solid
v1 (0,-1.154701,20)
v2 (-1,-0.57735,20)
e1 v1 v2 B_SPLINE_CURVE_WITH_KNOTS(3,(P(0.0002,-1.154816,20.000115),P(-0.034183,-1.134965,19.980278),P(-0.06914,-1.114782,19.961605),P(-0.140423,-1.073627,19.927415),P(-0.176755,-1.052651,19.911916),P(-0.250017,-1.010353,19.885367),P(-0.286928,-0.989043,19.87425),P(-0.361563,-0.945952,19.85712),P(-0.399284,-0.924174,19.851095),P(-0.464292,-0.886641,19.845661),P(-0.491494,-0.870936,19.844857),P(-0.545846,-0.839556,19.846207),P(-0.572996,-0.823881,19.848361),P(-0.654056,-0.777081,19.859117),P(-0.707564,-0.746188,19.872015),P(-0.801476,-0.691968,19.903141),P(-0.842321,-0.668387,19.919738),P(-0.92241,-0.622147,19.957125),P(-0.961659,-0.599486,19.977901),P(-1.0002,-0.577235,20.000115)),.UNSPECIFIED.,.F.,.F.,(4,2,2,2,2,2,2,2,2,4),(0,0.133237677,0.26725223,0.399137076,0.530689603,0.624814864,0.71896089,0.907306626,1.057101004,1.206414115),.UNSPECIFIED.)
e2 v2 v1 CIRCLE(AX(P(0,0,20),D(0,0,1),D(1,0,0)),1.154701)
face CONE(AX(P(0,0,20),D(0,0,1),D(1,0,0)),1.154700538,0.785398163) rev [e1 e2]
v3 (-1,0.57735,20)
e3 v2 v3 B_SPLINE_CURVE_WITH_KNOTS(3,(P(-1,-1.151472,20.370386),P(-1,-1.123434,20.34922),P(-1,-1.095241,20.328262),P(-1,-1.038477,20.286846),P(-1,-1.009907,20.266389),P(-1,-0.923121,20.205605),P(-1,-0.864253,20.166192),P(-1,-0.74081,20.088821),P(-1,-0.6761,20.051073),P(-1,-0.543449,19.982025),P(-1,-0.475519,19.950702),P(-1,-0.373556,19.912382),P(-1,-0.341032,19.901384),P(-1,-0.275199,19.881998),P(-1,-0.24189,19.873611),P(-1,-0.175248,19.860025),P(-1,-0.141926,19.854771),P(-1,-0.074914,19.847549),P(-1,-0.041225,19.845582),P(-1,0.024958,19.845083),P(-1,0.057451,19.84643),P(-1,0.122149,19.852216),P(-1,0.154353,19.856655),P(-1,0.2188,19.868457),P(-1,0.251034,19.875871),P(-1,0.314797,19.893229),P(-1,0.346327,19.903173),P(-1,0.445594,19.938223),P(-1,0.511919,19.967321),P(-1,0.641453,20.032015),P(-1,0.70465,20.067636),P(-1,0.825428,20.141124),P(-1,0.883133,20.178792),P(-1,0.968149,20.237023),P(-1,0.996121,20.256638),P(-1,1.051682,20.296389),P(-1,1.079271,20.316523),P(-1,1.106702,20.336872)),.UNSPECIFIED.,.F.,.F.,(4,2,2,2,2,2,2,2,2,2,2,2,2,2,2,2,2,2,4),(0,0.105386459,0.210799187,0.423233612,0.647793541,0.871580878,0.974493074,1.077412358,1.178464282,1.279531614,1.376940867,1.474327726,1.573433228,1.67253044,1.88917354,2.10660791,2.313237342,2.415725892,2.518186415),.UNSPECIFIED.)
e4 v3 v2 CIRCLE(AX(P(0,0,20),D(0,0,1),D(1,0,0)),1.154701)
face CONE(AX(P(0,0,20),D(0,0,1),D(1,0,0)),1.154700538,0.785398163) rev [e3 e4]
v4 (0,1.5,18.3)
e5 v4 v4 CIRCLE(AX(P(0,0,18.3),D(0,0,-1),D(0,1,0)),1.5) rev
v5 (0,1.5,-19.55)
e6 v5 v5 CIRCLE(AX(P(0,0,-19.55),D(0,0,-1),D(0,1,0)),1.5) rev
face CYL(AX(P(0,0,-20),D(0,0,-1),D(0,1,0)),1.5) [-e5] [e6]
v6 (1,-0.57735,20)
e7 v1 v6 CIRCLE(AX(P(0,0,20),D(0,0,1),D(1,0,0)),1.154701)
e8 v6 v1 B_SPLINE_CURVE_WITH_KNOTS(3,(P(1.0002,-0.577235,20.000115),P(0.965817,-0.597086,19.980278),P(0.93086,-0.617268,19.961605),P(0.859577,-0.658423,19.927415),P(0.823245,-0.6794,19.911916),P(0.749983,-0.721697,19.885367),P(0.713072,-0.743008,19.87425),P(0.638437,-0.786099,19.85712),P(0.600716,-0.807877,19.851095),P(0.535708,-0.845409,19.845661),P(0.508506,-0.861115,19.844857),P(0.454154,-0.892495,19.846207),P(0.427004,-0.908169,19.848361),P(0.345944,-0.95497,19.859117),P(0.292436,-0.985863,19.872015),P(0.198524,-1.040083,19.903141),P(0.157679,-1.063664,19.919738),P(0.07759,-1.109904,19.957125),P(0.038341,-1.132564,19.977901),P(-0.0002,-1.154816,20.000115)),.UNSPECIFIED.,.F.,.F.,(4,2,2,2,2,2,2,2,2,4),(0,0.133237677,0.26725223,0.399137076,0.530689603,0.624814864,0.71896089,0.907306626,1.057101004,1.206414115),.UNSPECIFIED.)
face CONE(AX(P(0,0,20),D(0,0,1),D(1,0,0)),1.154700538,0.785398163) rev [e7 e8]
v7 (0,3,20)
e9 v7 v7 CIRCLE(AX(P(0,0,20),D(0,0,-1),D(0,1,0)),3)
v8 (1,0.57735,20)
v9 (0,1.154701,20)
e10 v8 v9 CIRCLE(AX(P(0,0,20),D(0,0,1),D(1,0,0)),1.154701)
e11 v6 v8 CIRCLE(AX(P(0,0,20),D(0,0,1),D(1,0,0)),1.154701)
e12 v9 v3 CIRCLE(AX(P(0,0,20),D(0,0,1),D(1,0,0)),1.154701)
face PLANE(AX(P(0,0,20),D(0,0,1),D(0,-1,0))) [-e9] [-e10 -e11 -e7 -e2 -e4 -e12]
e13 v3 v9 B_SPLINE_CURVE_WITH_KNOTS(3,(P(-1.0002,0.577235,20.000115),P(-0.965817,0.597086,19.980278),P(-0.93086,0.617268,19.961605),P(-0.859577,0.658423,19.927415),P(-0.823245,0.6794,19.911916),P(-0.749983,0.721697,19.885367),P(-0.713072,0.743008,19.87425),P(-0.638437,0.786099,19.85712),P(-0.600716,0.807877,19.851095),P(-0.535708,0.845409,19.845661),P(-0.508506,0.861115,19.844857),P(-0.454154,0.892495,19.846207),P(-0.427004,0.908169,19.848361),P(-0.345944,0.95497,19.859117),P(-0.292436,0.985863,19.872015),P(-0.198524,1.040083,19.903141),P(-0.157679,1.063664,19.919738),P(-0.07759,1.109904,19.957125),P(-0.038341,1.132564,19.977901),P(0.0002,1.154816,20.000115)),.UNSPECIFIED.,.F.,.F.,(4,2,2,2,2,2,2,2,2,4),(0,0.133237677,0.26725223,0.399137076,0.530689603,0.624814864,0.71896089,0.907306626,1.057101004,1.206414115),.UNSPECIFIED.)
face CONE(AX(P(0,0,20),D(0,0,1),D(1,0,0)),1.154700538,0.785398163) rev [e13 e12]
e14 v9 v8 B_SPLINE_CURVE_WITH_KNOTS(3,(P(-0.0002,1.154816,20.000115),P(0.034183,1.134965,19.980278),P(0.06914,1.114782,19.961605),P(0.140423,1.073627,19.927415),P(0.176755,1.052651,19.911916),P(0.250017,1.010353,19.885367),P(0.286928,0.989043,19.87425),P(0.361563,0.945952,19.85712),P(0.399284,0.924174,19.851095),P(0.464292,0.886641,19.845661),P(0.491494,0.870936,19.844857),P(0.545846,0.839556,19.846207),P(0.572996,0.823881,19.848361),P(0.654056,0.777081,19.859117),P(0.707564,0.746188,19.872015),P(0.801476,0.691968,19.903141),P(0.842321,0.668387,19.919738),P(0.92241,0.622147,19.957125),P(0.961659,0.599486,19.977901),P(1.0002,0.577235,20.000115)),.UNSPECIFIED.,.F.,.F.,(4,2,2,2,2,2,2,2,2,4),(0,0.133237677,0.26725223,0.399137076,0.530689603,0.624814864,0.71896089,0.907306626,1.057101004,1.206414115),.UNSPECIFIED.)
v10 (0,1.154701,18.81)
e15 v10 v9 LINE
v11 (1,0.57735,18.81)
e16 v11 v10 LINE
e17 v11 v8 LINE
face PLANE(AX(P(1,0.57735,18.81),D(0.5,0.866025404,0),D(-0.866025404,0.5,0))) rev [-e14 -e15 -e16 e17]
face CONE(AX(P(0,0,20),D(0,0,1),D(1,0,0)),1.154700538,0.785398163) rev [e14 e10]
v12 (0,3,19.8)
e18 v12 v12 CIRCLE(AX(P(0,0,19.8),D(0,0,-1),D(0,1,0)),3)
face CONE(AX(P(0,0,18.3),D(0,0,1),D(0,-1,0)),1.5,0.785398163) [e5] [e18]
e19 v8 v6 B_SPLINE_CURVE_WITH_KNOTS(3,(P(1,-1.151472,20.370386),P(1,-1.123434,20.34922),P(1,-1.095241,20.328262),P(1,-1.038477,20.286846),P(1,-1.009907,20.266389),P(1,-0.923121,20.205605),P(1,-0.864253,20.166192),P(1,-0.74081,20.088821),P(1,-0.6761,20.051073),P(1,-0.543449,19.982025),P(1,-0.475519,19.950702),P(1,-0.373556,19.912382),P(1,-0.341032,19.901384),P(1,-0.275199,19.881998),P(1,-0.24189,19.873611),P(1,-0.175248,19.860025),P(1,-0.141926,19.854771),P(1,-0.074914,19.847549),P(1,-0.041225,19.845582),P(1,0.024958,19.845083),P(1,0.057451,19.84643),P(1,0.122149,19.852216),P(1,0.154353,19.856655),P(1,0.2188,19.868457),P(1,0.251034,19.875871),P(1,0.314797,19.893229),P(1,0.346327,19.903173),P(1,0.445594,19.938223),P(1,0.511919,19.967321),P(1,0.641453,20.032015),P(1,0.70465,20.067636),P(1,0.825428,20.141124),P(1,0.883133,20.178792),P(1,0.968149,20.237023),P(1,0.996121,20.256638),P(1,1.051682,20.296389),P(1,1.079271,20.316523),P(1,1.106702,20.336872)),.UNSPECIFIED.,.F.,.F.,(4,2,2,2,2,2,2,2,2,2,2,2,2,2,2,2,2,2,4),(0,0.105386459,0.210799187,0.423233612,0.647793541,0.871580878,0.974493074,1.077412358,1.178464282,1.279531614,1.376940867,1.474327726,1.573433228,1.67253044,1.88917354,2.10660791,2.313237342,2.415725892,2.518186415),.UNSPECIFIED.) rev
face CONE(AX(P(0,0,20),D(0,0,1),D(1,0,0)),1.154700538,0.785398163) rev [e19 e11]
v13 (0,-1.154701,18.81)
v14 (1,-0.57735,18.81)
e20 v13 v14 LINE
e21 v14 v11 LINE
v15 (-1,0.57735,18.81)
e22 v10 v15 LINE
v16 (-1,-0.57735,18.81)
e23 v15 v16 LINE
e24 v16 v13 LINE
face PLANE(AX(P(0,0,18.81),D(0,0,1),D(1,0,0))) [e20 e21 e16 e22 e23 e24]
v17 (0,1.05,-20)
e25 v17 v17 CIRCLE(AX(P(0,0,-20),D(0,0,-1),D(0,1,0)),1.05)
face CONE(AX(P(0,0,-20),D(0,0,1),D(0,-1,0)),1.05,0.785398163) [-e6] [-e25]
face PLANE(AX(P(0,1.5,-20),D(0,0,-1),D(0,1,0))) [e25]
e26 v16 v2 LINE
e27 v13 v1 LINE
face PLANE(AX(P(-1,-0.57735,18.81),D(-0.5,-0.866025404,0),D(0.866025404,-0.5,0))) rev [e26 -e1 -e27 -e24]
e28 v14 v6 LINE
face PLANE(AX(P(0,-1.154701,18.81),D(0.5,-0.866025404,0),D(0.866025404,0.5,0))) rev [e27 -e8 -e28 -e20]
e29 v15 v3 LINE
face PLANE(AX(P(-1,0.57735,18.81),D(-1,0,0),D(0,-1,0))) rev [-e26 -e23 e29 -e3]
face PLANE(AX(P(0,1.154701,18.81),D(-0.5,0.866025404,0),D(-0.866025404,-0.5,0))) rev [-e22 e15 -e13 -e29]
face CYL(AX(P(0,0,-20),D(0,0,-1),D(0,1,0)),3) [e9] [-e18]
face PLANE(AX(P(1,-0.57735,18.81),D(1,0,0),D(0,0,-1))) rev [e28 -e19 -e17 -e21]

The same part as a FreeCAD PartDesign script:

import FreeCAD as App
import Part
import Sketcher
from FreeCAD import Vector
Q = App.Units.Quantity


def edges_at(feature, points):
    """Names of the edges that pass closest to the given points."""
    edges = feature.Shape.Edges
    near = lambda p: min(range(len(edges)), key=lambda i: edges[i].distToShape(Part.Vertex(*p))[0])
    return sorted({f"Edge{near(p) + 1}" for p in points})


def add_polygon(sketch, points):
    """Adds a closed chain of lines whose ends are joined by coincident constraints."""
    first, n = sketch.GeometryCount, len(points)
    for a, b in zip(points, points[1:] + points[:1]):
        sketch.addGeometry(Part.LineSegment(App.Vector(*a, 0), App.Vector(*b, 0)), False)
    for i in range(n):
        sketch.addConstraint(Sketcher.Constraint("Coincident", first + i, 2, first + (i + 1) % n, 1))

doc = App.newDocument("Part")
body = doc.addObject("PartDesign::Body", "Body")

# Sketch on YZ plane
sketch1 = body.newObject("Sketcher::SketchObject", "Sketch")
sketch1.AttachmentSupport = (doc.getObject("YZ_Plane"), [""])
sketch1.MapMode = "FlatFace"
add_polygon(sketch1, [(1.5, 20), (0, 20), (0, -20), (1.5, -20)])  # lines 0-3
sketch1.addConstraint([
    Sketcher.Constraint("Horizontal", 0),
    Sketcher.Constraint("Vertical", 1),
    Sketcher.Constraint("Horizontal", 2),
    Sketcher.Constraint("Vertical", 3),
    Sketcher.Constraint("Symmetric", 0, 2, 1, 2, -1, 1),
    Sketcher.Constraint("DistanceY", 1, 2, 1, 1, Q("40 mm")),
    Sketcher.Constraint("DistanceX", 0, 2, 0, 1, Q("1.5 mm")),
])
revolution = body.newObject("PartDesign::Revolution", "Revolution")
revolution.Profile = sketch1
revolution.ReferenceAxis = (sketch1, ["V_Axis"])
revolution.Angle = 360
doc.recompute()

chamfer = body.newObject("PartDesign::Chamfer", "Chamfer")
chamfer.Base = (revolution, edges_at(revolution, [(0, -1.5, -20)]))
chamfer.Size = 0.45

# Sketch on YZ plane
sketch2 = body.newObject("Sketcher::SketchObject", "Sketch001")
sketch2.AttachmentSupport = (doc.getObject("YZ_Plane"), [""])
sketch2.MapMode = "FlatFace"
add_polygon(sketch2, [(3, 19.8), (3, 20), (0, 20), (0, 18.3), (1.5, 18.3)])  # lines 0-4
sketch2.addConstraint([
    Sketcher.Constraint("Vertical", 0),
    Sketcher.Constraint("Horizontal", 1),
    Sketcher.Constraint("Vertical", 2),
    Sketcher.Constraint("Horizontal", 3),
    Sketcher.Constraint("PointOnObject", 1, 2, -2),
    Sketcher.Constraint("DistanceX", 1, 2, 1, 1, Q("3 mm")),
    Sketcher.Constraint("Angle", 4, Q("45 deg")),
    Sketcher.Constraint("DistanceX", 3, 1, 3, 2, Q("1.5 mm")),
    Sketcher.Constraint("DistanceY", 0, 1, 0, 2, Q("0.2 mm")),
    Sketcher.Constraint("DistanceY", -1, 1, 0, 2, Q("20 mm")),
])
revolution2 = body.newObject("PartDesign::Revolution", "Revolution001")
revolution2.Profile = sketch2
revolution2.ReferenceAxis = (sketch2, ["V_Axis"])
revolution2.Angle = 360

# Sketch on XY plane
sketch3 = body.newObject("Sketcher::SketchObject", "Sketch002")
sketch3.AttachmentSupport = (doc.getObject("XY_Plane"), [""])
sketch3.MapMode = "FlatFace"
sketch3.AttachmentOffset = App.Placement(Vector(0, 0, 20), App.Rotation())
add_polygon(sketch3, [(0, 1.2), (-1, 0.6), (-1, -0.6), (0, -1.2), (1, -0.6), (1, 0.6)])  # lines 0-5
sketch3.addConstraint([
    Sketcher.Constraint("Vertical", 1),
    Sketcher.Constraint("Vertical", 4),
    Sketcher.Constraint("Symmetric", 0, 2, 3, 2, -1, 1),
    Sketcher.Constraint("Symmetric", 2, 2, 5, 2, -1, 1),
    Sketcher.Constraint("PointOnObject", 2, 2, -2),
    Sketcher.Constraint("Parallel", 2, 5),
    Sketcher.Constraint("Horizontal", 1, 2, 3, 2),
    Sketcher.Constraint("Angle", 0, Q("-150 deg")),
    Sketcher.Constraint("DistanceX", 0, 2, -1, 1, Q("1 mm")),
    Sketcher.Constraint("DistanceY", 1, 2, 1, 1, Q("1.154701 mm")),
])
pocket1 = body.newObject("PartDesign::Pocket", "Pocket")
pocket1.Profile = sketch3
pocket1.Length = 1.19

# Sketch on YZ plane
sketch4 = body.newObject("Sketcher::SketchObject", "Sketch003")
sketch4.AttachmentSupport = (doc.getObject("YZ_Plane"), [""])
sketch4.MapMode = "FlatFace"
add_polygon(sketch4, [(0, 20), (-1.2, 20), (0, 18.8)])  # lines 0-2
sketch4.addConstraint([
    Sketcher.Constraint("Horizontal", 0),
    Sketcher.Constraint("Vertical", 2),
    Sketcher.Constraint("PointOnObject", 1, 2, -2),
    Sketcher.Constraint("Equal", 0, 2),
    Sketcher.Constraint("DistanceY", -1, 1, 0, 2, Q("20 mm")),
    Sketcher.Constraint("DistanceX", 0, 2, 0, 1, Q("1.154701 mm")),
])
groove = body.newObject("PartDesign::Groove", "Groove")
groove.Profile = sketch4
groove.ReferenceAxis = (sketch4, ["V_Axis"])
groove.Angle = 360

doc.recompute()
